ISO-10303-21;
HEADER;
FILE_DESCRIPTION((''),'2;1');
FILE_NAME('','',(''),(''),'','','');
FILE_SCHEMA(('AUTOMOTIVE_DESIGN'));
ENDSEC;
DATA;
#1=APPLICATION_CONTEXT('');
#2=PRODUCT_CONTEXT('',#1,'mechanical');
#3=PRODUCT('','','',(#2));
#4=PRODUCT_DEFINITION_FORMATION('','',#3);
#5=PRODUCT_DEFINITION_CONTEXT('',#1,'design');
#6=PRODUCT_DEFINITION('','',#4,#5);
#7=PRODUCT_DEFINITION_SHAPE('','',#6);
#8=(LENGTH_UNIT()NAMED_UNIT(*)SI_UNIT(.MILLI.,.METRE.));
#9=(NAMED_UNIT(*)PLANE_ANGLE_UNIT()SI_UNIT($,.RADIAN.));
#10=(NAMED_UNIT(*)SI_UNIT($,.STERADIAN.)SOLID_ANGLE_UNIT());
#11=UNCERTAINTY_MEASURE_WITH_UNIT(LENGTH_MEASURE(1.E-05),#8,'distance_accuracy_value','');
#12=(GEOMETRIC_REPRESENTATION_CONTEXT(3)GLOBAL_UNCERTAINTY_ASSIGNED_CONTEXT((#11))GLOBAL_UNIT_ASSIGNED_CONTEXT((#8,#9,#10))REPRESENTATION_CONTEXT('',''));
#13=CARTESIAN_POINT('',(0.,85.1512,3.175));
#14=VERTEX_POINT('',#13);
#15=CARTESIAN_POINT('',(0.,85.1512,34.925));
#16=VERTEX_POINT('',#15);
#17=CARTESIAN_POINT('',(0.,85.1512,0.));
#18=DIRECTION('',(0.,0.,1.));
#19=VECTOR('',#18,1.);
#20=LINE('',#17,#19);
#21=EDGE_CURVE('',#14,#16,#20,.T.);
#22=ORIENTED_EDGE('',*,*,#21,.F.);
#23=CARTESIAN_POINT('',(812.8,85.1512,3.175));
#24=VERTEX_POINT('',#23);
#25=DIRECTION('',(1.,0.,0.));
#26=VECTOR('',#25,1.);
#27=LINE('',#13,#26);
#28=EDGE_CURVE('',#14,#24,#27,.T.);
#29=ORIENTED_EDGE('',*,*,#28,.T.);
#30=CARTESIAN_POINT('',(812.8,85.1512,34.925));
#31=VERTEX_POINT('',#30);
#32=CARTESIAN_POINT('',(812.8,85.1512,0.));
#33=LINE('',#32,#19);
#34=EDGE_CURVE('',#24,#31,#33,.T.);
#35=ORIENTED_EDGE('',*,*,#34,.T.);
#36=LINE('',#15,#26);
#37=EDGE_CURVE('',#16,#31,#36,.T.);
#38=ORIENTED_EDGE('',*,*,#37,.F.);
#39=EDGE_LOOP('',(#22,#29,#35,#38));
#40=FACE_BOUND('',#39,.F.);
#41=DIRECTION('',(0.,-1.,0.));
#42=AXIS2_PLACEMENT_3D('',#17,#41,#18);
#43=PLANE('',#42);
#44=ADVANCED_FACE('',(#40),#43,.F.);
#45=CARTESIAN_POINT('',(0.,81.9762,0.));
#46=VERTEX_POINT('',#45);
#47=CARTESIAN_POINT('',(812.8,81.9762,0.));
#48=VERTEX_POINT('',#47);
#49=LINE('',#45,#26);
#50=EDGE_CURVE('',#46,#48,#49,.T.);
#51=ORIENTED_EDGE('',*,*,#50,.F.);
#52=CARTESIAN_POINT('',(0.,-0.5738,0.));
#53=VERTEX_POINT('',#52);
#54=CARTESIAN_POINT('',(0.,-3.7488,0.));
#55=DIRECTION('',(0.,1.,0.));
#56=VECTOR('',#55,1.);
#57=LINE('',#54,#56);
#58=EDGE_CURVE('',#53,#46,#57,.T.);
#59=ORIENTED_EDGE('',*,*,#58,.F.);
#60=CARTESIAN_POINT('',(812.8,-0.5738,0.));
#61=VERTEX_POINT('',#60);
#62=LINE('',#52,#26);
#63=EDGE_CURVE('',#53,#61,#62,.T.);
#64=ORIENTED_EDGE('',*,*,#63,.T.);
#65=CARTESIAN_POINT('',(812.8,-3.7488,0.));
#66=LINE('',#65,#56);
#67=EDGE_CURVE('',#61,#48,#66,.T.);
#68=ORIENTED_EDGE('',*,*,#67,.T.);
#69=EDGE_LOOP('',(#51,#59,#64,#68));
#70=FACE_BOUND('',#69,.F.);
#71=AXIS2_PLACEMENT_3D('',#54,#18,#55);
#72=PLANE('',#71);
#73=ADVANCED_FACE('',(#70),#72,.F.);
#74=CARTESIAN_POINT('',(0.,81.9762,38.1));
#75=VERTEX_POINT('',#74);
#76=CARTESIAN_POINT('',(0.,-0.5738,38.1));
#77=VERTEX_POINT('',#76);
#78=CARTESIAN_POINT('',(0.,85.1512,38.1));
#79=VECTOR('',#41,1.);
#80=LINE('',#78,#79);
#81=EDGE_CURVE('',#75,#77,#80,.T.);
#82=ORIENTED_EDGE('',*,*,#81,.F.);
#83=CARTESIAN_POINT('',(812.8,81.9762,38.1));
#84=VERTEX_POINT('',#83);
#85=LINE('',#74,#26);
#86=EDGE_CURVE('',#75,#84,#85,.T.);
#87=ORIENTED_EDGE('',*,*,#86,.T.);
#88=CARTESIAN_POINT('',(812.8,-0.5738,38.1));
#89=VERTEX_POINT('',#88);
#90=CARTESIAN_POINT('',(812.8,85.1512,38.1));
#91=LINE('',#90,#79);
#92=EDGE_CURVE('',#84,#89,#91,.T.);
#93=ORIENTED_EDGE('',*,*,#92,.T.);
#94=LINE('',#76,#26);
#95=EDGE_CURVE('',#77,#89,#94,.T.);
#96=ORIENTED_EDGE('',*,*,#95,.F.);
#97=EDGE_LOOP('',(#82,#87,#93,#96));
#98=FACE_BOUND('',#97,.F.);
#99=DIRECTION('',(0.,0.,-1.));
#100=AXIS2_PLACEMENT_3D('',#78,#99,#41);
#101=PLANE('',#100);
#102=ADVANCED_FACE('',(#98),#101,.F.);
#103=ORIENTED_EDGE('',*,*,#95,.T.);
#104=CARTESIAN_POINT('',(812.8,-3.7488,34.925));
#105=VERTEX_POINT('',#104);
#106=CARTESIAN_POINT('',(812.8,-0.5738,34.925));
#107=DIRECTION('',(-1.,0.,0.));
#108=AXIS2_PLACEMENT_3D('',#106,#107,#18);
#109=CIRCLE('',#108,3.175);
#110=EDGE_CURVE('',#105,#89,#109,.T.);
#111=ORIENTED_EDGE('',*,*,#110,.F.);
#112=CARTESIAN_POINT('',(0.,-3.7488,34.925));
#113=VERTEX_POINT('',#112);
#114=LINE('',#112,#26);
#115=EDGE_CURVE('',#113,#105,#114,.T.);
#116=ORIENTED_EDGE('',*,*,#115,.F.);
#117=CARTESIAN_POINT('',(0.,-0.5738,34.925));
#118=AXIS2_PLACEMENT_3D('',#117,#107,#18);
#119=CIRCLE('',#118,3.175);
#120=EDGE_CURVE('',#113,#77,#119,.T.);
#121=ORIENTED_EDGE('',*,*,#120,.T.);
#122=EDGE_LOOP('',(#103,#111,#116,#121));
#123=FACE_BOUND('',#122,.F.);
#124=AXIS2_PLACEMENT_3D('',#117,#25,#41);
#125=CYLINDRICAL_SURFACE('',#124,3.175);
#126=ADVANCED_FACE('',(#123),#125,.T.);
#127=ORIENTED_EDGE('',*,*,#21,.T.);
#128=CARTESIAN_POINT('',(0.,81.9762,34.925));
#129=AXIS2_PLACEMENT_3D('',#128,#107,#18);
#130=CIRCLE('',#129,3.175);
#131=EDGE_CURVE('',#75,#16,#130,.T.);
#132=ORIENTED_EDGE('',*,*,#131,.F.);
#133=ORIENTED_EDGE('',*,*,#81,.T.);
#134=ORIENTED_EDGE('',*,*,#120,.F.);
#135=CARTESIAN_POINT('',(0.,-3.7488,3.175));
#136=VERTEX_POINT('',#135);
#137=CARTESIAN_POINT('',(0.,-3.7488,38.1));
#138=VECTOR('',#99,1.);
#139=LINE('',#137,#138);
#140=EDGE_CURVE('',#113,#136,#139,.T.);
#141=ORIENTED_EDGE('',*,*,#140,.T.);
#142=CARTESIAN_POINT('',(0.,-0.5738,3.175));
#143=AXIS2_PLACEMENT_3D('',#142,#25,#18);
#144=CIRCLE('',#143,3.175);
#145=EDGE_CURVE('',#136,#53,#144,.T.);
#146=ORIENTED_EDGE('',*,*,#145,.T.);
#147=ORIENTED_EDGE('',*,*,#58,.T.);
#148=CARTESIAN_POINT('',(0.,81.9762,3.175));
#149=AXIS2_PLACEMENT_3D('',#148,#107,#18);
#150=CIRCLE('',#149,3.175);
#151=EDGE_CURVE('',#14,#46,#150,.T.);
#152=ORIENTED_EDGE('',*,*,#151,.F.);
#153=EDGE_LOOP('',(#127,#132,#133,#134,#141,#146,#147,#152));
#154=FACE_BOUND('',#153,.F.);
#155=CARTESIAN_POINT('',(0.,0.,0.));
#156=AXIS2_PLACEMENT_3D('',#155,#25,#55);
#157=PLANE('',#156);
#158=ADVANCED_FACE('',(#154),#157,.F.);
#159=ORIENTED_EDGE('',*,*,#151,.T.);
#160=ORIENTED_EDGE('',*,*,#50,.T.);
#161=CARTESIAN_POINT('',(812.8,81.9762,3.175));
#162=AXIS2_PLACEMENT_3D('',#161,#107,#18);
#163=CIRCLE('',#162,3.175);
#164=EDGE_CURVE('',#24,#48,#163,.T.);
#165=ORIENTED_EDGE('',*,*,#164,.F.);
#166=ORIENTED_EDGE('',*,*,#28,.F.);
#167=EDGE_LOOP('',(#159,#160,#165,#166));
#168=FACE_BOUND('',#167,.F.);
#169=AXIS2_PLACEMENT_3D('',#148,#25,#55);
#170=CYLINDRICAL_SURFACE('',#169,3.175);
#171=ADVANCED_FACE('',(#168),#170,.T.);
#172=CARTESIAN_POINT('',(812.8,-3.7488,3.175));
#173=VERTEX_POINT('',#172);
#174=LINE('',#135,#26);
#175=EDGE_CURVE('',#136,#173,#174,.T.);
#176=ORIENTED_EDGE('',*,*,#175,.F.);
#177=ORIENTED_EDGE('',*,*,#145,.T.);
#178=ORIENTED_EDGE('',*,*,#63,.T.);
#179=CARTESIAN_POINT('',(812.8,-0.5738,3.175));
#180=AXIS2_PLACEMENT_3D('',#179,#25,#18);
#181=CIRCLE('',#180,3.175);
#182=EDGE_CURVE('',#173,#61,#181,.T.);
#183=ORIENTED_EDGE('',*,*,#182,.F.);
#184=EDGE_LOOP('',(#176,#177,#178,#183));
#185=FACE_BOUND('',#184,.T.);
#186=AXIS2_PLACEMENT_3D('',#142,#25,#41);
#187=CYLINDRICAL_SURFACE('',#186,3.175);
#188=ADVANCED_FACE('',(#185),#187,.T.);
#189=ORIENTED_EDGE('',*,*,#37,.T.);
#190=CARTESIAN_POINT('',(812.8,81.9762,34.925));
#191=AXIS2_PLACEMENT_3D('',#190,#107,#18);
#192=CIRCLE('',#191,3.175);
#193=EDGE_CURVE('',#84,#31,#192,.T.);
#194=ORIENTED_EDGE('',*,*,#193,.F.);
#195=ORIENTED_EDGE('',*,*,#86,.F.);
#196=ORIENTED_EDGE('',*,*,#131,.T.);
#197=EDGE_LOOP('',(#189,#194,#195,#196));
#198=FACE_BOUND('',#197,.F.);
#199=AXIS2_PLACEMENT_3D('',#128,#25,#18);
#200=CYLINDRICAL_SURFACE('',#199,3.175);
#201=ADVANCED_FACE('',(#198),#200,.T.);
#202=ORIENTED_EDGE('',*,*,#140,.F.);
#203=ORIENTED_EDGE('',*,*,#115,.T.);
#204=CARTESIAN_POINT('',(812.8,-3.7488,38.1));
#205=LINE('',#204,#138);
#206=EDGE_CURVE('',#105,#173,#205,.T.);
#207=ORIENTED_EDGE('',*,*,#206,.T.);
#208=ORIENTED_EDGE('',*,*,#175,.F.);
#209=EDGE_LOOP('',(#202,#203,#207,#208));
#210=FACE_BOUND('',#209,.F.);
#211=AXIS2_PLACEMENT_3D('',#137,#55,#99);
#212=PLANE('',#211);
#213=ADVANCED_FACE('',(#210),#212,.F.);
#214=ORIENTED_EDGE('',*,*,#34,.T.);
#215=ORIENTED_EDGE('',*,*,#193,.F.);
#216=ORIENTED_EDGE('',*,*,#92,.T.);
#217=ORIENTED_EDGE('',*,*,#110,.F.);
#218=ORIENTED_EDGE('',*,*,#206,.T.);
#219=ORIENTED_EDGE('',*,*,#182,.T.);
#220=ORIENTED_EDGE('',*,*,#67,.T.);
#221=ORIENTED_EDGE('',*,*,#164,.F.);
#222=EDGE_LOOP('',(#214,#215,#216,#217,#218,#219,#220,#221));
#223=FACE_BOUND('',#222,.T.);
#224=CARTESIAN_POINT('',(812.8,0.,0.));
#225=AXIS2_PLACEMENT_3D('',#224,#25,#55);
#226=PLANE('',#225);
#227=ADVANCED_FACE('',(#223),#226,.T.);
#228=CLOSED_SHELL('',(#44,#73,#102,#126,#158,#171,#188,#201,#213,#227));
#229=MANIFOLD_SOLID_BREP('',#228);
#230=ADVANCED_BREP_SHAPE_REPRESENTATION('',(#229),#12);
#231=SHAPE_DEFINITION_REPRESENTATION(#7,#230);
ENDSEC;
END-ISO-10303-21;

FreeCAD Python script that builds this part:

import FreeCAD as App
import Part
import Sketcher
Q = App.Units.Quantity


def edges_at(feature, points):
    """Names of the edges that pass closest to the given points."""
    edges = feature.Shape.Edges
    near = lambda p: min(range(len(edges)), key=lambda i: edges[i].distToShape(Part.Vertex(*p))[0])
    return sorted({f"Edge{near(p) + 1}" for p in points})

doc = App.newDocument("Part")
params = doc.addObject("Spreadsheet::Sheet", "Params")
for row, (alias, value) in enumerate([
    ("sketch1_width", "3.5 in"),
    ("sketch1_height", "1.5 in"),
    ("pad1_length", "32 in"),
    ("fillet_radius", "0.125 in"),
], start=1):
    params.set(f"A{row}", alias)
    params.set(f"B{row}", "=" + value)
    params.setAlias(f"B{row}", alias)

body = doc.addObject("PartDesign::Body", "Body")

# Sketch on YZ plane
sketch1 = doc.addObject("Sketcher::SketchObject", "Sketch")
body.addObject(sketch1)
sketch1.AttachmentSupport = (doc.YZ_Plane, [""])
sketch1.MapMode = "FlatFace"
sketch1.addGeometry([
    Part.LineSegment(App.Vector(-3.7488, 38.1, 0), App.Vector(-3.7488, 0, 0)),
    Part.LineSegment(App.Vector(-3.7488, 0, 0), App.Vector(85.1512, 0, 0)),
    Part.LineSegment(App.Vector(85.1512, 0, 0), App.Vector(85.1512, 38.1, 0)),
    Part.LineSegment(App.Vector(85.1512, 38.1, 0), App.Vector(-3.7488, 38.1, 0)),
], False)
sketch1.addConstraint([
    Sketcher.Constraint("Coincident", 0, 2, 1, 1),
    Sketcher.Constraint("Coincident", 1, 2, 2, 1),
    Sketcher.Constraint("Coincident", 2, 2, 3, 1),
    Sketcher.Constraint("Coincident", 3, 2, 0, 1),
    Sketcher.Constraint("Vertical", 0),
    Sketcher.Constraint("Horizontal", 1),
    Sketcher.Constraint("Vertical", 2),
    Sketcher.Constraint("Horizontal", 3),
    Sketcher.Constraint("PointOnObject", 0, 2, -1),
    Sketcher.Constraint("DistanceX", 1, 1, 1, 2, Q("3.5 in")),
    Sketcher.Constraint("DistanceY", 0, 2, 0, 1, Q("1.5 in")),
    Sketcher.Constraint("DistanceX", 0, 2, -1, 1, Q("0.1476 in")),
])
sketch1.setExpression("Constraints[9]", "Params.sketch1_width")
sketch1.setExpression("Constraints[10]", "Params.sketch1_height")
pad1 = doc.addObject("PartDesign::Pad", "Pad")
body.addObject(pad1)
pad1.Profile = sketch1
pad1.setExpression("Length", "Params.pad1_length")
doc.recompute()

fillet = doc.addObject("PartDesign::Fillet", "Fillet")
body.addObject(fillet)
fillet.Base = (pad1, edges_at(pad1, [
    (406.4, 85.151, 38.1),
    (406.4, 85.151, 0),
    (406.4, -3.749, 0),
    (406.4, -3.749, 38.1),
]))
fillet.setExpression("Radius", "Params.fillet_radius")

doc.recompute()
